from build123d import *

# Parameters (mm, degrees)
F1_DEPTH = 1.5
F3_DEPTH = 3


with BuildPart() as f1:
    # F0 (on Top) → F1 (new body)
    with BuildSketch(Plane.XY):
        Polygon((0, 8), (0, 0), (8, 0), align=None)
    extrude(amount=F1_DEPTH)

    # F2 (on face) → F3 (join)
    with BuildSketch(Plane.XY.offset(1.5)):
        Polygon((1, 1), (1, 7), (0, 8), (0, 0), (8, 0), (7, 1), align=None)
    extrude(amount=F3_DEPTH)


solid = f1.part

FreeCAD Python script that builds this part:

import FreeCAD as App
import Part
import Sketcher


def add_polygon(sketch, points):
    """Adds a closed chain of lines whose ends are joined by coincident constraints."""
    first, n = sketch.GeometryCount, len(points)
    for a, b in zip(points, points[1:] + points[:1]):
        sketch.addGeometry(Part.LineSegment(App.Vector(*a, 0), App.Vector(*b, 0)), False)
    for i in range(n):
        sketch.addConstraint(Sketcher.Constraint("Coincident", first + i, 2, first + (i + 1) % n, 1))

doc = App.newDocument("Part")
body = doc.addObject("PartDesign::Body", "Body")

# Sketch on XY plane
sketch1 = body.newObject("Sketcher::SketchObject", "Sketch")
sketch1.AttachmentSupport = (doc.getObject("XY_Plane"), [""])
sketch1.MapMode = "FlatFace"
add_polygon(sketch1, [(0, 8), (0, 0), (8, 0)])  # lines 0-2
sketch1.addConstraint(Sketcher.Constraint("Vertical", 0))
sketch1.addConstraint(Sketcher.Constraint("Horizontal", 1))
sketch1.addConstraint(Sketcher.Constraint("Coincident", 0, 2, -1, 1))
sketch1.addConstraint(Sketcher.Constraint("Equal", 1, 0))
sketch1.addConstraint(Sketcher.Constraint("DistanceX", 1, 1, 1, 2, 8.0))
pad1 = body.newObject("PartDesign::Pad", "Pad")
pad1.Profile = sketch1
pad1.Length = 1.5

# Sketch on XY plane
sketch2 = body.newObject("Sketcher::SketchObject", "Sketch001")
sketch2.AttachmentSupport = (doc.getObject("XY_Plane"), [""])
sketch2.MapMode = "FlatFace"
sketch2.AttachmentOffset = App.Placement(App.Vector(0, 0, 1.5), App.Rotation())
add_polygon(sketch2, [(1, 1), (1, 7), (0, 8), (0, 0), (8, 0), (7, 1)])  # lines 0-5
sketch2.addConstraint(Sketcher.Constraint("Vertical", 0))
sketch2.addConstraint(Sketcher.Constraint("Vertical", 2))
sketch2.addConstraint(Sketcher.Constraint("Horizontal", 3))
sketch2.addConstraint(Sketcher.Constraint("Horizontal", 5))
sketch2.addConstraint(Sketcher.Constraint("Coincident", 2, 2, -1, 1))
sketch2.addConstraint(Sketcher.Constraint("Parallel", 1, 4))
sketch2.addConstraint(Sketcher.Constraint("Equal", 5, 0))
sketch2.addConstraint(Sketcher.Constraint("Equal", 3, 2))
sketch2.addConstraint(Sketcher.Constraint("Equal", 1, 4))
sketch2.addConstraint(Sketcher.Constraint("DistanceX", 3, 1, 3, 2, 8.0))
sketch2.addConstraint(Sketcher.Constraint("DistanceX", 5, 2, 5, 1, 6.0))
pad2 = body.newObject("PartDesign::Pad", "Pad001")
pad2.Profile = sketch2
pad2.Length = 3

doc.recompute()
